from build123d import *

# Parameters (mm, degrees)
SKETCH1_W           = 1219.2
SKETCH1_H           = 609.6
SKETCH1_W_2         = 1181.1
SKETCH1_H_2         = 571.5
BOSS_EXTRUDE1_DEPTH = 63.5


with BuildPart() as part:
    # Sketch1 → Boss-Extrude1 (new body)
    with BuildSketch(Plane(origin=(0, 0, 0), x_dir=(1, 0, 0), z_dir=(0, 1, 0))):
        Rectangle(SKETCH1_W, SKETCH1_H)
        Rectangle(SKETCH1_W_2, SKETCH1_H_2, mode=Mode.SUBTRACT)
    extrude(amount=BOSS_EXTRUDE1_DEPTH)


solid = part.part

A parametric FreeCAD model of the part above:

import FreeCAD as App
import Part
import Sketcher
Q = App.Units.Quantity


def add_polygon(sketch, points):
    """Adds a closed chain of lines whose ends are joined by coincident constraints."""
    first, n = sketch.GeometryCount, len(points)
    for a, b in zip(points, points[1:] + points[:1]):
        sketch.addGeometry(Part.LineSegment(App.Vector(*a, 0), App.Vector(*b, 0)), False)
    for i in range(n):
        sketch.addConstraint(Sketcher.Constraint("Coincident", first + i, 2, first + (i + 1) % n, 1))

doc = App.newDocument("Part")
params = doc.addObject("Spreadsheet::Sheet", "Params")
for row, (alias, value) in enumerate([
    ("sketch1_width", "48 in"),
    ("sketch1_height", "24 in"),
    ("sketch1_width2", "46.5 in"),
    ("sketch1_height2", "22.5 in"),
    ("pad1_length", "2.5 in"),
], start=1):
    params.set(f"A{row}", alias)
    params.set(f"B{row}", "=" + value)
    params.setAlias(f"B{row}", alias)

body = doc.addObject("PartDesign::Body", "Body")

# Sketch on XZ plane
sketch1 = body.newObject("Sketcher::SketchObject", "Sketch")
sketch1.AttachmentSupport = (doc.getObject("XZ_Plane"), [""])
sketch1.MapMode = "FlatFace"
add_polygon(sketch1, [(-610, -305), (-610, 305), (610, 305), (610, -305)])  # lines 0-3
add_polygon(sketch1, [(591, 286), (-591, 286), (-591, -286), (591, -286)])  # lines 4-7
sketch1.addConstraint(Sketcher.Constraint("Vertical", 0))
sketch1.addConstraint(Sketcher.Constraint("Horizontal", 1))
sketch1.addConstraint(Sketcher.Constraint("Vertical", 2))
sketch1.addConstraint(Sketcher.Constraint("Horizontal", 3))
sketch1.addConstraint(Sketcher.Constraint("Horizontal", 4))
sketch1.addConstraint(Sketcher.Constraint("Vertical", 5))
sketch1.addConstraint(Sketcher.Constraint("Horizontal", 6))
sketch1.addConstraint(Sketcher.Constraint("Vertical", 7))
sketch1.addConstraint(Sketcher.Constraint("Symmetric", 0, 2, 2, 2, -1, 1))
sketch1.addConstraint(Sketcher.Constraint("Symmetric", 4, 2, 6, 2, -1, 1))
sketch1.addConstraint(Sketcher.Constraint("DistanceX", 1, 1, 1, 2, Q("48 in")))
sketch1.addConstraint(Sketcher.Constraint("DistanceY", 0, 1, 0, 2, Q("24 in")))
sketch1.addConstraint(Sketcher.Constraint("DistanceX", 4, 2, 4, 1, Q("46.5 in")))
sketch1.addConstraint(Sketcher.Constraint("DistanceY", 5, 2, 5, 1, Q("22.5 in")))
sketch1.setExpression("Constraints[18]", "Params.sketch1_width")
sketch1.setExpression("Constraints[19]", "Params.sketch1_height")
sketch1.setExpression("Constraints[20]", "Params.sketch1_width2")
sketch1.setExpression("Constraints[21]", "Params.sketch1_height2")
pad1 = body.newObject("PartDesign::Pad", "Pad")
pad1.Profile = sketch1
pad1.setExpression("Length", "Params.pad1_length")
pad1.Reversed = True

doc.recompute()
